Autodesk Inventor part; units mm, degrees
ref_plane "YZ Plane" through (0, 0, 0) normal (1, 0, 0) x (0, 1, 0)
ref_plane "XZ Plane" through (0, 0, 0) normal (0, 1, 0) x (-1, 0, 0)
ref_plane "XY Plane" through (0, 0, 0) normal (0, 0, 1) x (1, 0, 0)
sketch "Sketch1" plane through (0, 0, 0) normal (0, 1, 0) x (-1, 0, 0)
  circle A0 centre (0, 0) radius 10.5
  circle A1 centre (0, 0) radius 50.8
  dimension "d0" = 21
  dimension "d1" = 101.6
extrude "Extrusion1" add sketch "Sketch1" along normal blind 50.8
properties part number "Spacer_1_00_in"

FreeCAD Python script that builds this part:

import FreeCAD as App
import Part
import Sketcher

V = App.Vector
Q = App.Units.Quantity

doc = App.newDocument("Part")
body = doc.addObject("PartDesign::Body", "Body")

sketch1 = body.newObject("Sketcher::SketchObject", "Sketch")
sketch1.AttachmentSupport = (doc.getObject("XZ_Plane"), [""])
sketch1.MapMode = "FlatFace"
sketch1.addGeometry([
    Part.Circle(V(0, 0, 0), V(0, 0, 1), 50.8),
    Part.Circle(V(0, 0, 0), V(0, 0, 1), 10.5),
], False)
sketch1.addConstraint([
    Sketcher.Constraint("Coincident", 0, 3, -1, 1),
    Sketcher.Constraint("Coincident", 1, 3, -1, 1),
    Sketcher.Constraint("Diameter", 0, Q("4 in")),
    Sketcher.Constraint("Diameter", 1, 21.0),
])
pad1 = body.newObject("PartDesign::Pad", "Pad")
pad1.Profile = sketch1
pad1.Length = Q("2 in")
pad1.Reversed = True

doc.recompute()
